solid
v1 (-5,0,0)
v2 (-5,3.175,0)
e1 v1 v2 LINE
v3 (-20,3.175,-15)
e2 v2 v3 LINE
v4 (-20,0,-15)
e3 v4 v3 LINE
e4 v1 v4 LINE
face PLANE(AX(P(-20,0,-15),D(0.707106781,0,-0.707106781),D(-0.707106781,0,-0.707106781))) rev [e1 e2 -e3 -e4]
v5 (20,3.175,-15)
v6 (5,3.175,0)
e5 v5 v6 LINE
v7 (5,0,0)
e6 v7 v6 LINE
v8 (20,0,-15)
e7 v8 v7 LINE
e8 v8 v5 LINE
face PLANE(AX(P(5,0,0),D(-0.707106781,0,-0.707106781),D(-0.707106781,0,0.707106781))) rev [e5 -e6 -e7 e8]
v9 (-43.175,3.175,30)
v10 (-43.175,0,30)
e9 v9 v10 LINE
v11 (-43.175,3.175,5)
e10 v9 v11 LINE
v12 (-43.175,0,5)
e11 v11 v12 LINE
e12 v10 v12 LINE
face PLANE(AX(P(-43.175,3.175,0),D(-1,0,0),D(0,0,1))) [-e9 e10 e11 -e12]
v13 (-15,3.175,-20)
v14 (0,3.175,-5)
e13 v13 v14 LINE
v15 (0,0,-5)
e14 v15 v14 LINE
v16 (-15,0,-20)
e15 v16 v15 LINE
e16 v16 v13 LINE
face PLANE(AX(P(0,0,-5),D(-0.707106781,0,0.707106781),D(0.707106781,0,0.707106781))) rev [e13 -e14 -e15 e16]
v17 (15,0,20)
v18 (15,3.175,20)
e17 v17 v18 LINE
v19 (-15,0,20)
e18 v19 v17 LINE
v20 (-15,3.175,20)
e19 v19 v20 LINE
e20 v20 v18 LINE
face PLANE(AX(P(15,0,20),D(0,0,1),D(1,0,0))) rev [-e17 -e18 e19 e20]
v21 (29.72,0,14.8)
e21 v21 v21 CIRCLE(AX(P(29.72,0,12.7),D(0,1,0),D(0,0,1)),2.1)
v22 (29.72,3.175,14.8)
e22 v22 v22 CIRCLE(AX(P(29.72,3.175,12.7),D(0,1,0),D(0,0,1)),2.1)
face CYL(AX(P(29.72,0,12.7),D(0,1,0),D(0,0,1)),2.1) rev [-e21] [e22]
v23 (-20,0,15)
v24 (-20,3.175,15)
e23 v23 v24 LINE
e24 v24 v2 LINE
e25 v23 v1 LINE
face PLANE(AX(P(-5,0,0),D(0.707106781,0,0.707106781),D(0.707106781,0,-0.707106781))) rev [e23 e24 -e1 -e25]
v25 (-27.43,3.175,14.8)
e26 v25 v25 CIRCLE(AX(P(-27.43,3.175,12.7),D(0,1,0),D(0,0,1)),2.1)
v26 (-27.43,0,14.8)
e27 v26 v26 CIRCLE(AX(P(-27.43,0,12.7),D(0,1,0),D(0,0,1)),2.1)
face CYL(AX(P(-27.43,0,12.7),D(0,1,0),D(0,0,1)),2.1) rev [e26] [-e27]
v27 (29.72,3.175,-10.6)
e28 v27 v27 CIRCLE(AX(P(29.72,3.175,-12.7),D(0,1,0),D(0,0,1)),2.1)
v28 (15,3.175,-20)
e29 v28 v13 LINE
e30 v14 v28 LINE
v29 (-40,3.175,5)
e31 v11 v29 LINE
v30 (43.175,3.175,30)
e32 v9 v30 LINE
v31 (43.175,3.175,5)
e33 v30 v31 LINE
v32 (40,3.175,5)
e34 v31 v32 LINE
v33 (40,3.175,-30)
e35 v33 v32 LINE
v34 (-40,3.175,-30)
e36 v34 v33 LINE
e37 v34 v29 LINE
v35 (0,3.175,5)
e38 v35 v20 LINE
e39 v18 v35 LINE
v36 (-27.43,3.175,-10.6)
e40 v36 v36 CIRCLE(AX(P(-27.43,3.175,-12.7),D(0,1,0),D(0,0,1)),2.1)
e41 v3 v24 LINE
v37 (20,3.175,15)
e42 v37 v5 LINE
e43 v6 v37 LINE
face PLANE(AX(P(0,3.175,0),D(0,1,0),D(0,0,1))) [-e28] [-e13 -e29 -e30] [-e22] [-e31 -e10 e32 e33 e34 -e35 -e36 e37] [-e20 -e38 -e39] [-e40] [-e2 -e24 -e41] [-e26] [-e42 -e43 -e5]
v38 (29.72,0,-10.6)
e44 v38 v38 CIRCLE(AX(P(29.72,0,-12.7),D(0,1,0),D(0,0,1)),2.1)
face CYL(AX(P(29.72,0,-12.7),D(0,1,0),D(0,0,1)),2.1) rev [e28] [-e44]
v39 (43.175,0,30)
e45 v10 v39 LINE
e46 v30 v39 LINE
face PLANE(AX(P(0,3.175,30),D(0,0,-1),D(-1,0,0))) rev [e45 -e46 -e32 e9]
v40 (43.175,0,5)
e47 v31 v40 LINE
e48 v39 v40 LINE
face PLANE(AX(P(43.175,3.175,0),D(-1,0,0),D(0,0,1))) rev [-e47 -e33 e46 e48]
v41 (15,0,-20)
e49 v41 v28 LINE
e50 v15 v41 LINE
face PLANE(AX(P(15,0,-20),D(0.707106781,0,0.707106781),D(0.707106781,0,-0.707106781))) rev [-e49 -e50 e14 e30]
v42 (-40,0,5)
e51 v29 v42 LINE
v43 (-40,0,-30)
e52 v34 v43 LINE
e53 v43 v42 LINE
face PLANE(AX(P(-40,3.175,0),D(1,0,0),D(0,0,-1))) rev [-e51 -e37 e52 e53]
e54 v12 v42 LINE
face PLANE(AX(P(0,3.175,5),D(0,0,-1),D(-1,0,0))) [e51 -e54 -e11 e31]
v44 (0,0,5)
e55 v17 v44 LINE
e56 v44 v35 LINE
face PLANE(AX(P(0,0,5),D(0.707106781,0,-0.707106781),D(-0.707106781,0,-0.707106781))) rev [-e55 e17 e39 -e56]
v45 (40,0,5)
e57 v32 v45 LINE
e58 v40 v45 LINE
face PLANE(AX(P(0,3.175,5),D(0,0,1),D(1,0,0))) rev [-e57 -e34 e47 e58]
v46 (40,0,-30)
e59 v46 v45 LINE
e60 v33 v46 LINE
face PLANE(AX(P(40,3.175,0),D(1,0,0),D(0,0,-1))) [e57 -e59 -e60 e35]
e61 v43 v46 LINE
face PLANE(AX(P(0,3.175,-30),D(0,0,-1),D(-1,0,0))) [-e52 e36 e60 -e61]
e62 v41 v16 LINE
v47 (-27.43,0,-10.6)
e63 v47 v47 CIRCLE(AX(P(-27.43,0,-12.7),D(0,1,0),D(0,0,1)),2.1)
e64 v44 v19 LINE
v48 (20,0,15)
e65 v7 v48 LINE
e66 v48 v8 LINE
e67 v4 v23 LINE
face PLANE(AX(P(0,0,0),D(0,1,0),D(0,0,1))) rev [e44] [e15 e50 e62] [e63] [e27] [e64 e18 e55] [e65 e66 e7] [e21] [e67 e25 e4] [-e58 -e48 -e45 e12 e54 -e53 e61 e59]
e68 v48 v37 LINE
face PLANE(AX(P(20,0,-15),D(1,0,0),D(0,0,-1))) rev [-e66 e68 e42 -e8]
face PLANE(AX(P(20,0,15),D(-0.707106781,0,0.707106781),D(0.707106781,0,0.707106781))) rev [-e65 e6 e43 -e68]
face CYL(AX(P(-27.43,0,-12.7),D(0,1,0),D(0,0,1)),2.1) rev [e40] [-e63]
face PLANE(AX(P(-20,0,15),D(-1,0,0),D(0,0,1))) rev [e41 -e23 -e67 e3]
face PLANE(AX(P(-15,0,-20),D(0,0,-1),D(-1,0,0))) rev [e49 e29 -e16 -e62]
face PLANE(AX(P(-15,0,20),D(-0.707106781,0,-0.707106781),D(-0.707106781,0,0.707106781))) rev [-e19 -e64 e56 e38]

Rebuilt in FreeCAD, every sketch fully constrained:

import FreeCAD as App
import Part
import Sketcher

V = App.Vector
Q = App.Units.Quantity

doc = App.newDocument("Part")
body = doc.addObject("PartDesign::Body", "Body")

# Sketch on XZ plane
sketch1 = body.newObject("Sketcher::SketchObject", "Sketch")
sketch1.AttachmentSupport = (doc.getObject("XZ_Plane"), [""])
sketch1.MapMode = "FlatFace"
sketch1.addGeometry([
    Part.LineSegment(V(-43.175, 5, 0), V(-43.175, 30, 0)),  # 0
    Part.LineSegment(V(-43.175, 30, 0), V(43.175, 30, 0)),  # 1
    Part.LineSegment(V(43.175, 30, 0), V(43.175, 5, 0)),  # 2
    Part.LineSegment(V(43.175, 5, 0), V(40, 5, 0)),  # 3
    Part.LineSegment(V(40, 5, 0), V(40, -30, 0)),  # 4
    Part.LineSegment(V(40, -30, 0), V(-40, -30, 0)),  # 5
    Part.LineSegment(V(-40, -30, 0), V(-40, 5, 0)),  # 6
    Part.LineSegment(V(-40, 5, 0), V(-43.175, 5, 0)),  # 7
], False)
sketch1.addConstraint([
    Sketcher.Constraint("Coincident", 0, 2, 1, 1),
    Sketcher.Constraint("Coincident", 1, 2, 2, 1),
    Sketcher.Constraint("Coincident", 2, 2, 3, 1),
    Sketcher.Constraint("Coincident", 3, 2, 4, 1),
    Sketcher.Constraint("Coincident", 4, 2, 5, 1),
    Sketcher.Constraint("Coincident", 5, 2, 6, 1),
    Sketcher.Constraint("Coincident", 6, 2, 7, 1),
    Sketcher.Constraint("Coincident", 7, 2, 0, 1),
    Sketcher.Constraint("Vertical", 0),
    Sketcher.Constraint("Horizontal", 1),
    Sketcher.Constraint("Vertical", 2),
    Sketcher.Constraint("Horizontal", 3),
    Sketcher.Constraint("Vertical", 4),
    Sketcher.Constraint("Horizontal", 5),
    Sketcher.Constraint("Vertical", 6),
    Sketcher.Constraint("Horizontal", 7),
    Sketcher.Constraint("Symmetric", 3, 2, 6, 2, -2),
    Sketcher.Constraint("Equal", 3, 7),
    Sketcher.Constraint("DistanceX", 5, 2, 5, 1, Q("80 mm")),
    Sketcher.Constraint("DistanceY", 0, 1, 0, 2, Q("25 mm")),
    Sketcher.Constraint("DistanceY", 4, 2, 4, 1, Q("35 mm")),
    Sketcher.Constraint("DistanceY", -1, 1, 0, 2, Q("30 mm")),
    Sketcher.Constraint("DistanceX", 1, 1, 1, 2, Q("86.35 mm")),
])
pad1 = body.newObject("PartDesign::Pad", "Pad")
pad1.Profile = sketch1
pad1.Length = 3.175
pad1.Reversed = True

# Sketch on XZ plane
sketch2 = body.newObject("Sketcher::SketchObject", "Sketch001")
sketch2.AttachmentSupport = (doc.getObject("XZ_Plane"), [""])
sketch2.MapMode = "FlatFace"
sketch2.AttachmentOffset = App.Placement(V(0, 0, -3.175), App.Rotation())
sketch2.addGeometry([
    Part.Circle(V(-27.43, -12.7, 0), V(0, 0, 1), 2.1),
    Part.Circle(V(29.72, -12.7, 0), V(0, 0, 1), 2.1),
    Part.Circle(V(29.72, 12.7, 0), V(0, 0, 1), 2.1),
    Part.Circle(V(-27.43, 12.7, 0), V(0, 0, 1), 2.1),
], False)
sketch2.addConstraint([
    Sketcher.Constraint("Equal", 0, 1),
    Sketcher.Constraint("Equal", 1, 2),
    Sketcher.Constraint("Equal", 2, 3),
    Sketcher.Constraint("Symmetric", 1, 3, 2, 3, -1),
    Sketcher.Constraint("Symmetric", 0, 3, 3, 3, -1),
    Sketcher.Constraint("Horizontal", 0, 3, 1, 3),
    Sketcher.Constraint("Diameter", 0, Q("4.2 mm")),
    Sketcher.Constraint("DistanceY", 0, 3, -1, 1, Q("12.7 mm")),
    Sketcher.Constraint("DistanceX", 0, 3, -1, 1, Q("27.43 mm")),
    Sketcher.Constraint("DistanceX", -1, 1, 1, 3, Q("29.72 mm")),
])
pocket1 = body.newObject("PartDesign::Pocket", "Pocket")
pocket1.Profile = sketch2
pocket1.Length = 3.175
pocket1.Reversed = True

# Sketch on XZ plane
sketch3 = body.newObject("Sketcher::SketchObject", "Sketch002")
sketch3.AttachmentSupport = (doc.getObject("XZ_Plane"), [""])
sketch3.MapMode = "FlatFace"
sketch3.AttachmentOffset = App.Placement(V(0, 0, -3.175), App.Rotation())
sketch3.addGeometry([
    Part.LineSegment(V(-20, -15, 0), V(-20, 15, 0)),  # 0
    Part.LineSegment(V(-20, 15, 0), V(-5, 0, 0)),  # 1
    Part.LineSegment(V(-5, 0, 0), V(-20, -15, 0)),  # 2
    Part.LineSegment(V(-15, -20, 0), V(0, -5, 0)),  # 3
    Part.LineSegment(V(0, -5, 0), V(15, -20, 0)),  # 4
    Part.LineSegment(V(15, -20, 0), V(-15, -20, 0)),  # 5
    Part.LineSegment(V(20, -15, 0), V(5, 0, 0)),  # 6
    Part.LineSegment(V(5, 0, 0), V(20, 15, 0)),  # 7
    Part.LineSegment(V(20, 15, 0), V(20, -15, 0)),  # 8
    Part.LineSegment(V(15, 20, 0), V(0, 5, 0)),  # 9
    Part.LineSegment(V(0, 5, 0), V(-15, 20, 0)),  # 10
    Part.LineSegment(V(-15, 20, 0), V(15, 20, 0)),  # 11
], False)
sketch3.addConstraint([
    Sketcher.Constraint("Coincident", 0, 2, 1, 1),
    Sketcher.Constraint("Coincident", 1, 2, 2, 1),
    Sketcher.Constraint("Coincident", 2, 2, 0, 1),
    Sketcher.Constraint("Coincident", 3, 2, 4, 1),
    Sketcher.Constraint("Coincident", 4, 2, 5, 1),
    Sketcher.Constraint("Coincident", 5, 2, 3, 1),
    Sketcher.Constraint("Coincident", 6, 2, 7, 1),
    Sketcher.Constraint("Coincident", 7, 2, 8, 1),
    Sketcher.Constraint("Coincident", 8, 2, 6, 1),
    Sketcher.Constraint("Coincident", 9, 2, 10, 1),
    Sketcher.Constraint("Coincident", 10, 2, 11, 1),
    Sketcher.Constraint("Coincident", 11, 2, 9, 1),
    Sketcher.Constraint("Vertical", 0),
    Sketcher.Constraint("Horizontal", 5),
    Sketcher.Constraint("Vertical", 8),
    Sketcher.Constraint("Horizontal", 11),
    Sketcher.Constraint("Symmetric", 1, 2, 6, 2, -1, 1),
    Sketcher.Constraint("Symmetric", 2, 2, 7, 2, -1, 1),
    Sketcher.Constraint("Symmetric", 3, 2, 9, 2, -1, 1),
    Sketcher.Constraint("Symmetric", 4, 2, 10, 2, -1, 1),
    Sketcher.Constraint("PointOnObject", 1, 2, -1),
    Sketcher.Constraint("PointOnObject", 3, 2, -2),
    Sketcher.Constraint("Perpendicular", 1, 2),
    Sketcher.Constraint("Parallel", 2, 3),
    Sketcher.Constraint("Perpendicular", 3, 4),
    Sketcher.Constraint("Parallel", 4, 6),
    Sketcher.Constraint("Parallel", 7, 9),
    Sketcher.Constraint("Horizontal", 0, 2, 7, 2),
    Sketcher.Constraint("Equal", 11, 0),
    Sketcher.Constraint("DistanceX", 5, 2, 5, 1, Q("30 mm")),
    Sketcher.Constraint("DistanceX", 0, 2, -1, 1, Q("20 mm")),
    Sketcher.Constraint("DistanceY", 3, 2, -1, 1, Q("5 mm")),
])
pocket2 = body.newObject("PartDesign::Pocket", "Pocket001")
pocket2.Profile = sketch3
pocket2.Length = 3.175
pocket2.Reversed = True

doc.recompute()
